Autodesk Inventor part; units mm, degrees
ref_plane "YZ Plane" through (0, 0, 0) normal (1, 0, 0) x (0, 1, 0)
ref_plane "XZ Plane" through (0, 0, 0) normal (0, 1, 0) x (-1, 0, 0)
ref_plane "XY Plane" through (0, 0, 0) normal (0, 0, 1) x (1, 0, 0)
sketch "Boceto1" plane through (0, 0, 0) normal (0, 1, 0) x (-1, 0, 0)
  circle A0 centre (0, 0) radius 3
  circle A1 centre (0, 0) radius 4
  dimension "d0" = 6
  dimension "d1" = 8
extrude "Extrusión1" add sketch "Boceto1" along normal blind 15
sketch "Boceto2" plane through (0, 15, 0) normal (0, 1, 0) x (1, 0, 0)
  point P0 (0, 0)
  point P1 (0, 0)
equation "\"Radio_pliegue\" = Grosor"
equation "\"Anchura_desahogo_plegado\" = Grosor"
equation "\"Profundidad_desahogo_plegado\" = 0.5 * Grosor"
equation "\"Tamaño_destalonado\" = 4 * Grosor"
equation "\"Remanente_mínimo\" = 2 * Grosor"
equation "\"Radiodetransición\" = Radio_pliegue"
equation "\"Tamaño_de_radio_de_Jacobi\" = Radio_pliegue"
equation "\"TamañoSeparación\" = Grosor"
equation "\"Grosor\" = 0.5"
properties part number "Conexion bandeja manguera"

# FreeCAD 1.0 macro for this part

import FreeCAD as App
import Part
import Sketcher
from FreeCAD import Vector
Q = App.Units.Quantity

doc = App.newDocument("Part")
body = doc.addObject("PartDesign::Body", "Body")

# Sketch on XZ plane
sketch1 = doc.addObject("Sketcher::SketchObject", "Sketch")
body.addObject(sketch1)
sketch1.AttachmentSupport = (doc.XZ_Plane, [""])
sketch1.MapMode = "FlatFace"
sketch1.addGeometry([
    Part.Circle(Vector(0, 0, 0), Vector(0, 0, 1), 4),
    Part.Circle(Vector(0, 0, 0), Vector(0, 0, 1), 3),
], False)
sketch1.addConstraint([
    Sketcher.Constraint("Coincident", 0, 3, -1, 1),
    Sketcher.Constraint("Coincident", 1, 3, -1, 1),
    Sketcher.Constraint("Diameter", 0, Q("8 mm")),
    Sketcher.Constraint("Diameter", 1, Q("6 mm")),
])
pad1 = doc.addObject("PartDesign::Pad", "Pad")
body.addObject(pad1)
pad1.Profile = sketch1
pad1.Length = 15
pad1.Reversed = True

doc.recompute()
